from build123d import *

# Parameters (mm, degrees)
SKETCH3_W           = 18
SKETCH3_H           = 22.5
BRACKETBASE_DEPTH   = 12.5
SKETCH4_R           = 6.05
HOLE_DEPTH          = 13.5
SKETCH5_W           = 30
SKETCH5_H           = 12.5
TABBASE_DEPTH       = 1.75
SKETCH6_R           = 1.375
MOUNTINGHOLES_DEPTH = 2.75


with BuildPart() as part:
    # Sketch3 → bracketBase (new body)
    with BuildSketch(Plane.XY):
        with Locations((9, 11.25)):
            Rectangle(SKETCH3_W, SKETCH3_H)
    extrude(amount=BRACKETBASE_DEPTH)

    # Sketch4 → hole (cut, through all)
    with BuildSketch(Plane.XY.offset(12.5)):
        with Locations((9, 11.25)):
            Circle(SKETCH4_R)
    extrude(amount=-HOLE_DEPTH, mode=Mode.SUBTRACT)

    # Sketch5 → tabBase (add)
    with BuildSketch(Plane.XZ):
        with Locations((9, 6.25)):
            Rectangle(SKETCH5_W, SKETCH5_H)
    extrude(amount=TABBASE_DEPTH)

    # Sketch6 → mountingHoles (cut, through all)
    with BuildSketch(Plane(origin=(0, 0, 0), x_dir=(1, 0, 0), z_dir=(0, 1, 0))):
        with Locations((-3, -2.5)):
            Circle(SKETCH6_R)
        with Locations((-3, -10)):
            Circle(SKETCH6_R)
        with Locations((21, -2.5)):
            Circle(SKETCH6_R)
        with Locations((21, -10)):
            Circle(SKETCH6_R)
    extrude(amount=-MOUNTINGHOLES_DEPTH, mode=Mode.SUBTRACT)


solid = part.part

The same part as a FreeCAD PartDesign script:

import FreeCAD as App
import Part
import Sketcher
from FreeCAD import Vector
Q = App.Units.Quantity


def add_polygon(sketch, points):
    """Adds a closed chain of lines whose ends are joined by coincident constraints."""
    first, n = sketch.GeometryCount, len(points)
    for a, b in zip(points, points[1:] + points[:1]):
        sketch.addGeometry(Part.LineSegment(App.Vector(*a, 0), App.Vector(*b, 0)), False)
    for i in range(n):
        sketch.addConstraint(Sketcher.Constraint("Coincident", first + i, 2, first + (i + 1) % n, 1))

doc = App.newDocument("Part")
body = doc.addObject("PartDesign::Body", "Body")

# Sketch on XY plane
sketch1 = body.newObject("Sketcher::SketchObject", "Sketch")
sketch1.AttachmentSupport = (doc.getObject("XY_Plane"), [""])
sketch1.MapMode = "FlatFace"
add_polygon(sketch1, [(0, 22), (0, 0), (18, 0), (18, 22)])  # lines 0-3
sketch1.addConstraint([
    Sketcher.Constraint("Vertical", 0),
    Sketcher.Constraint("Horizontal", 1),
    Sketcher.Constraint("Vertical", 2),
    Sketcher.Constraint("Horizontal", 3),
    Sketcher.Constraint("Coincident", 0, 2, -1, 1),
    Sketcher.Constraint("DistanceX", 1, 1, 1, 2, Q("18 mm")),
    Sketcher.Constraint("DistanceY", 0, 2, 0, 1, Q("22.5 mm")),
])
pad1 = body.newObject("PartDesign::Pad", "Pad")
pad1.Profile = sketch1
pad1.Length = 12.5

# Sketch on XY plane
sketch2 = body.newObject("Sketcher::SketchObject", "Sketch001")
sketch2.AttachmentSupport = (doc.getObject("XY_Plane"), [""])
sketch2.MapMode = "FlatFace"
sketch2.AttachmentOffset = App.Placement(Vector(0, 0, 12.5), App.Rotation())
sketch2.addGeometry(Part.Circle(Vector(9, 11, 0), Vector(0, 0, 1), 6), False)
sketch2.addConstraint([
    Sketcher.Constraint("Diameter", 0, Q("12.1 mm")),
    Sketcher.Constraint("DistanceX", -1, 1, 0, 3, Q("9 mm")),
    Sketcher.Constraint("DistanceY", -1, 1, 0, 3, Q("11.25 mm")),
])
pocket1 = body.newObject("PartDesign::Pocket", "Pocket")
pocket1.Profile = sketch2
pocket1.Type = "ThroughAll"

# Sketch on XZ plane
sketch3 = body.newObject("Sketcher::SketchObject", "Sketch002")
sketch3.AttachmentSupport = (doc.getObject("XZ_Plane"), [""])
sketch3.MapMode = "FlatFace"
add_polygon(sketch3, [(-6, 12), (-6, 0), (24, 0), (24, 12)])  # lines 0-3
sketch3.addConstraint([
    Sketcher.Constraint("Vertical", 0),
    Sketcher.Constraint("Horizontal", 1),
    Sketcher.Constraint("Vertical", 2),
    Sketcher.Constraint("Horizontal", 3),
    Sketcher.Constraint("PointOnObject", 0, 2, -1),
    Sketcher.Constraint("DistanceX", 1, 1, 1, 2, Q("30 mm")),
    Sketcher.Constraint("DistanceY", 0, 2, 0, 1, Q("12.5 mm")),
    Sketcher.Constraint("DistanceX", 0, 2, -1, 1, Q("6 mm")),
])
pad2 = body.newObject("PartDesign::Pad", "Pad001")
pad2.Profile = sketch3
pad2.Length = 1.75

# Sketch on XZ plane
sketch4 = body.newObject("Sketcher::SketchObject", "Sketch003")
sketch4.AttachmentSupport = (doc.getObject("XZ_Plane"), [""])
sketch4.MapMode = "FlatFace"
sketch4.addGeometry([
    Part.Circle(Vector(-3, 2.5, 0), Vector(0, 0, 1), 1.4),
    Part.Circle(Vector(-3, 10, 0), Vector(0, 0, 1), 1.4),
    Part.Circle(Vector(21, 2.5, 0), Vector(0, 0, 1), 1.4),
    Part.Circle(Vector(21, 10, 0), Vector(0, 0, 1), 1.4),
], False)
sketch4.addConstraint([
    Sketcher.Constraint("Equal", 0, 1),
    Sketcher.Constraint("Equal", 1, 2),
    Sketcher.Constraint("Equal", 2, 3),
    Sketcher.Constraint("Horizontal", 0, 3, 2, 3),
    Sketcher.Constraint("Horizontal", 1, 3, 3, 3),
    Sketcher.Constraint("Vertical", 0, 3, 1, 3),
    Sketcher.Constraint("Vertical", 2, 3, 3, 3),
    Sketcher.Constraint("Diameter", 0, Q("2.75 mm")),
    Sketcher.Constraint("DistanceX", 0, 3, -1, 1, Q("3 mm")),
    Sketcher.Constraint("DistanceY", -1, 1, 1, 3, Q("10 mm")),
    Sketcher.Constraint("DistanceX", -1, 1, 2, 3, Q("21 mm")),
    Sketcher.Constraint("DistanceY", -1, 1, 0, 3, Q("2.5 mm")),
])
pocket2 = body.newObject("PartDesign::Pocket", "Pocket001")
pocket2.Profile = sketch4
pocket2.Type = "ThroughAll"
pocket2.Reversed = True

doc.recompute()
